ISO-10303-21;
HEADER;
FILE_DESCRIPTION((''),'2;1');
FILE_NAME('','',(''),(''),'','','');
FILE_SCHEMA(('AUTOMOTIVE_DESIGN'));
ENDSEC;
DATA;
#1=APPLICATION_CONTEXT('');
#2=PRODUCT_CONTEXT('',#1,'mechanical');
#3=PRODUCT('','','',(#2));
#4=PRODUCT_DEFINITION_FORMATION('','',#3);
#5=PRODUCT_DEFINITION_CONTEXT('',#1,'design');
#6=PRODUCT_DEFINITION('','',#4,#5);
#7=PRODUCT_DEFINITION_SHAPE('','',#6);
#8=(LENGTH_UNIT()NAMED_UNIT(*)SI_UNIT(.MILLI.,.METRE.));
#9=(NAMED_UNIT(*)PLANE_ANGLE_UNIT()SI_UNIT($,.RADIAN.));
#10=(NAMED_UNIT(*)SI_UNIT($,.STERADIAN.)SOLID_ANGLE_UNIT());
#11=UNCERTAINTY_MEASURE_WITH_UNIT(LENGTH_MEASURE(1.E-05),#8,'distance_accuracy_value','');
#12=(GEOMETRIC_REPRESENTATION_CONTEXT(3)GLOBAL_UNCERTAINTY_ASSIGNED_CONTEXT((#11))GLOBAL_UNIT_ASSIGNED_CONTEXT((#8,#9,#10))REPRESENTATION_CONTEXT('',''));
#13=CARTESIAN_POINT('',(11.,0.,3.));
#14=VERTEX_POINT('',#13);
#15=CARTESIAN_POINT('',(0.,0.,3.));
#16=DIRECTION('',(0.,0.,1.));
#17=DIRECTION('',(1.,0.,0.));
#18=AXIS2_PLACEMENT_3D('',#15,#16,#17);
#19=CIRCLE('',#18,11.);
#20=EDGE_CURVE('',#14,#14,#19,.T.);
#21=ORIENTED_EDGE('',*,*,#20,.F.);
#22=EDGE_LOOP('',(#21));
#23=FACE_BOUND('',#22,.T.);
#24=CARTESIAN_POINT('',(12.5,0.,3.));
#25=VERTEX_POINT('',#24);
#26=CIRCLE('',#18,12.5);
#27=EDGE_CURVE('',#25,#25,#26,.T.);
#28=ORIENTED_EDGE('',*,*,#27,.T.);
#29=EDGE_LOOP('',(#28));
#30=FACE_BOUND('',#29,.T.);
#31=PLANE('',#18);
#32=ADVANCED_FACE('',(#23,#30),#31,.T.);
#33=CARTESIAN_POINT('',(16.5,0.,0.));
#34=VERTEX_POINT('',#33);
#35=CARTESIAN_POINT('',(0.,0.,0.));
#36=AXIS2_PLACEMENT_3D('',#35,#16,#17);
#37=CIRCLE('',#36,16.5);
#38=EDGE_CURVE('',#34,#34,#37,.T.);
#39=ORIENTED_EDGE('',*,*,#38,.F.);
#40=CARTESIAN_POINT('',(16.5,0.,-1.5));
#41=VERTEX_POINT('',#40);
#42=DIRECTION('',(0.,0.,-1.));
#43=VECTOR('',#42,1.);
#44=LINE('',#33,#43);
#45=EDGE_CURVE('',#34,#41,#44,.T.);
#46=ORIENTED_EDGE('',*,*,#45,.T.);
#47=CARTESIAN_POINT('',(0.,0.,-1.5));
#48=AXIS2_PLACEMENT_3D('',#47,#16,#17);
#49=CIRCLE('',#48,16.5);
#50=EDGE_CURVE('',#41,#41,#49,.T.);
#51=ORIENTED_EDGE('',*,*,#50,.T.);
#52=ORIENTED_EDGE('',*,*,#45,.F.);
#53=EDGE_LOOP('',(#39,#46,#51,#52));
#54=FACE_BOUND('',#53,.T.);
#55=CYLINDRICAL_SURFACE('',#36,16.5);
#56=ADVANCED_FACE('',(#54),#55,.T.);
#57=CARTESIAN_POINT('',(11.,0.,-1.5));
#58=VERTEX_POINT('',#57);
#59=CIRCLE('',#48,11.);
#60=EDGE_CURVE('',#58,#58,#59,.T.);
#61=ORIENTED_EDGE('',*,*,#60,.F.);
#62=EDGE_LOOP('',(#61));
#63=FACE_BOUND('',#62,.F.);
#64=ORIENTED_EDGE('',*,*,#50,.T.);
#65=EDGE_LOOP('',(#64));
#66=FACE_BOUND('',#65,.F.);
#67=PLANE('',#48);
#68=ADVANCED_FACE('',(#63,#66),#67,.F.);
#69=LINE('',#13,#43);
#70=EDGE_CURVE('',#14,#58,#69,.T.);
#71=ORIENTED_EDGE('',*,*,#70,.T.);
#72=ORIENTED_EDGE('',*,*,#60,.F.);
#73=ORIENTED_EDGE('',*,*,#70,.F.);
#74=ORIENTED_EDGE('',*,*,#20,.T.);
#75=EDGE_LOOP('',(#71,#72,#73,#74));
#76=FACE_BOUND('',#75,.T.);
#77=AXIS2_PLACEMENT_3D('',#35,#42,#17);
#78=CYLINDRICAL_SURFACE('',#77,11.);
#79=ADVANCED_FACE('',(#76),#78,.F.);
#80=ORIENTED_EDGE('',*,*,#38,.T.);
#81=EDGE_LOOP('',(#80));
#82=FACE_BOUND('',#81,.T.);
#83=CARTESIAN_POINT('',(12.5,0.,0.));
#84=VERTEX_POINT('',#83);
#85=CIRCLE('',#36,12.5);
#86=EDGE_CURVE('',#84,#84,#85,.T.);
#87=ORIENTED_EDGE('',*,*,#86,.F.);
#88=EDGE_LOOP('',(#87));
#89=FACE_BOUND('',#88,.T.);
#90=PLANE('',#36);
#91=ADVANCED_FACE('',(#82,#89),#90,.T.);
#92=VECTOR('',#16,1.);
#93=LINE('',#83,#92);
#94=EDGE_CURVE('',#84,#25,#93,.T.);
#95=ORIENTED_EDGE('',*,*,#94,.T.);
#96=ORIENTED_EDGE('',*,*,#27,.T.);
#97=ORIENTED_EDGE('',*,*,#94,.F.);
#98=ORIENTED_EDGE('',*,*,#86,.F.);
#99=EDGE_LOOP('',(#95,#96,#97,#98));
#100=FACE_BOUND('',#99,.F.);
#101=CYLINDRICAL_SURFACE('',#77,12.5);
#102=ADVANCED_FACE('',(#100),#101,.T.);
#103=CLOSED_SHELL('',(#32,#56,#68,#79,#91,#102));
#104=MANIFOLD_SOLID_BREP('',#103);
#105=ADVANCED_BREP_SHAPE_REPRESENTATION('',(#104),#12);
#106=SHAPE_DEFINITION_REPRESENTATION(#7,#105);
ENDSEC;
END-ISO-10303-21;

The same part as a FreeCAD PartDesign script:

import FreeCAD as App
import Part
import Sketcher

V = App.Vector

doc = App.newDocument("Part")
body = doc.addObject("PartDesign::Body", "Body")

# Sketch on XY plane
sketch1 = doc.addObject("Sketcher::SketchObject", "Sketch")
body.addObject(sketch1)
sketch1.AttachmentSupport = (doc.XY_Plane, [""])
sketch1.MapMode = "FlatFace"
sketch1.addGeometry([
    Part.Circle(V(0, 0, 0), V(0, 0, 1), 12),
    Part.Circle(V(0, 0, 0), V(0, 0, 1), 11),
], False)
sketch1.addConstraint([
    Sketcher.Constraint("Coincident", 0, 3, -1, 1),
    Sketcher.Constraint("Coincident", 1, 3, -1, 1),
    Sketcher.Constraint("Diameter", 0, 25.0),
    Sketcher.Constraint("Diameter", 1, 22.0),
])
pad1 = doc.addObject("PartDesign::Pad", "Pad")
body.addObject(pad1)
pad1.Profile = sketch1
pad1.Length = 3

# Sketch on XY plane
sketch2 = doc.addObject("Sketcher::SketchObject", "Sketch001")
body.addObject(sketch2)
sketch2.AttachmentSupport = (doc.XY_Plane, [""])
sketch2.MapMode = "FlatFace"
sketch2.addGeometry([
    Part.Circle(V(0, 0, 0), V(0, 0, 1), 16),
    Part.Circle(V(0, 0, 0), V(0, 0, 1), 11),
], False)
sketch2.addConstraint([
    Sketcher.Constraint("Coincident", 0, 3, -1, 1),
    Sketcher.Constraint("Coincident", 1, 3, -1, 1),
    Sketcher.Constraint("Diameter", 0, 33.0),
    Sketcher.Constraint("Diameter", 1, 22.0),
])
pad2 = doc.addObject("PartDesign::Pad", "Pad001")
body.addObject(pad2)
pad2.Profile = sketch2
pad2.Length = 1.5
pad2.Reversed = True

doc.recompute()
